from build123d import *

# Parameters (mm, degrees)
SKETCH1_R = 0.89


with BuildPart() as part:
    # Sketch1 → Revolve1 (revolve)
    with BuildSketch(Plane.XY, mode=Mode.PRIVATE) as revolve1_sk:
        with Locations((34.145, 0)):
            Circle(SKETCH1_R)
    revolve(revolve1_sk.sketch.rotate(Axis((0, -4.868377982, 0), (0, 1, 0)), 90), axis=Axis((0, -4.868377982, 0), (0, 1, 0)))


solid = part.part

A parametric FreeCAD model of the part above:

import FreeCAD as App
import Part
import Sketcher
from FreeCAD import Vector
Q = App.Units.Quantity

doc = App.newDocument("Part")
params = doc.addObject("Spreadsheet::Sheet", "Params")
for row, (alias, value) in enumerate([
    ("sketch1_diameter", "1.78 mm"),
    ("revolution_angle", "360 deg"),
], start=1):
    params.set(f"A{row}", alias)
    params.set(f"B{row}", "=" + value)
    params.setAlias(f"B{row}", alias)

body = doc.addObject("PartDesign::Body", "Body")

# Sketch on XY plane
sketch1 = doc.addObject("Sketcher::SketchObject", "Sketch")
body.addObject(sketch1)
sketch1.AttachmentSupport = (doc.XY_Plane, [""])
sketch1.MapMode = "FlatFace"
sketch1.addGeometry(Part.Circle(Vector(34.145, 0, 0), Vector(0, 0, 1), 0.89), False)
sketch1.addConstraint([
    Sketcher.Constraint("PointOnObject", 0, 3, -1),
    Sketcher.Constraint("Diameter", 0, Q("1.78 mm")),
    Sketcher.Constraint("DistanceX", -1, 1, 0, 3, Q("34.145 mm")),
])
sketch1.setExpression("Constraints[1]", "Params.sketch1_diameter")
revolution = doc.addObject("PartDesign::Revolution", "Revolution")
body.addObject(revolution)
revolution.Profile = sketch1
revolution.ReferenceAxis = (sketch1, ["V_Axis"])
revolution.setExpression("Angle", "Params.revolution_angle")

doc.recompute()
